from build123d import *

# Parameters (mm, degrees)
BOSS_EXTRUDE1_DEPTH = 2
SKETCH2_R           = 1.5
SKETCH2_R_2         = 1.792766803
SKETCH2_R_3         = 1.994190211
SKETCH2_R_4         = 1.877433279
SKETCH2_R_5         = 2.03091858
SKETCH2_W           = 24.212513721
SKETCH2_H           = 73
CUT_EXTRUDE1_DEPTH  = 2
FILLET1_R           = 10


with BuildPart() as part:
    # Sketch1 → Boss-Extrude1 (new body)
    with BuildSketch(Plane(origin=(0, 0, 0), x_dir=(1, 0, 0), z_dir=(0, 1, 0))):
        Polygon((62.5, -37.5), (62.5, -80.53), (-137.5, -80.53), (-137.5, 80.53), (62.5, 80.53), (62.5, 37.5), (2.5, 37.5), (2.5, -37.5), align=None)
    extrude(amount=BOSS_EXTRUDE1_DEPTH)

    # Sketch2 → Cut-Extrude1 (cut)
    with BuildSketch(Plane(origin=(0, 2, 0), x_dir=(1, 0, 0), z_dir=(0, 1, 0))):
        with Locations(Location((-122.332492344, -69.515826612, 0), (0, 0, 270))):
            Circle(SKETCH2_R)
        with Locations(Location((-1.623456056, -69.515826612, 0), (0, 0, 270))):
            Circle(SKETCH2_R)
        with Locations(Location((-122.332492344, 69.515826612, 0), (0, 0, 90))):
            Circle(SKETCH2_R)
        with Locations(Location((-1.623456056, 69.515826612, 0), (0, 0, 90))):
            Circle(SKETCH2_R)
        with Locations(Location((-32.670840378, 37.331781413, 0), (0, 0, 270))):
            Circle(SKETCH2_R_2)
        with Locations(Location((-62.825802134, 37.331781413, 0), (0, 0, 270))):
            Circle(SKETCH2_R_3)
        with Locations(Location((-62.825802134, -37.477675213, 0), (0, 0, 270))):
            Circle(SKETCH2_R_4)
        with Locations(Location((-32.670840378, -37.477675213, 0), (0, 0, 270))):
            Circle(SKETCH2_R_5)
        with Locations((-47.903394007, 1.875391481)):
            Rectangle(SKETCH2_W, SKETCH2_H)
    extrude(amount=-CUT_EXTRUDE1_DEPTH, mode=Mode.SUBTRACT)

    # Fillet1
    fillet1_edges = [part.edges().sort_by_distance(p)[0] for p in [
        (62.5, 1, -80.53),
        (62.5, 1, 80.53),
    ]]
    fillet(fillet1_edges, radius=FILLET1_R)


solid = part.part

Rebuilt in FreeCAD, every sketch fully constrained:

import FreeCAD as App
import Part
import Sketcher

V = App.Vector
Q = App.Units.Quantity


def edges_at(feature, points):
    """Names of the edges that pass closest to the given points."""
    edges = feature.Shape.Edges
    near = lambda p: min(range(len(edges)), key=lambda i: edges[i].distToShape(Part.Vertex(*p))[0])
    return sorted({f"Edge{near(p) + 1}" for p in points})


def add_polygon(sketch, points):
    """Adds a closed chain of lines whose ends are joined by coincident constraints."""
    first, n = sketch.GeometryCount, len(points)
    for a, b in zip(points, points[1:] + points[:1]):
        sketch.addGeometry(Part.LineSegment(App.Vector(*a, 0), App.Vector(*b, 0)), False)
    for i in range(n):
        sketch.addConstraint(Sketcher.Constraint("Coincident", first + i, 2, first + (i + 1) % n, 1))

doc = App.newDocument("Part")
body = doc.addObject("PartDesign::Body", "Body")

# Sketch on XZ plane
sketch1 = body.newObject("Sketcher::SketchObject", "Sketch")
sketch1.AttachmentSupport = (doc.getObject("XZ_Plane"), [""])
sketch1.MapMode = "FlatFace"
add_polygon(sketch1, [(62, 81), (62, 38), (2, 38), (2, -38), (62, -38), (62, -81), (-138, -81), (-138, 81)])  # lines 0-7
sketch1.addConstraint(Sketcher.Constraint("Vertical", 0))
sketch1.addConstraint(Sketcher.Constraint("Horizontal", 1))
sketch1.addConstraint(Sketcher.Constraint("Vertical", 2))
sketch1.addConstraint(Sketcher.Constraint("Horizontal", 3))
sketch1.addConstraint(Sketcher.Constraint("Vertical", 4))
sketch1.addConstraint(Sketcher.Constraint("Horizontal", 5))
sketch1.addConstraint(Sketcher.Constraint("Vertical", 6))
sketch1.addConstraint(Sketcher.Constraint("Horizontal", 7))
sketch1.addConstraint(Sketcher.Constraint("Symmetric", 0, 2, 3, 2, -1))
sketch1.addConstraint(Sketcher.Constraint("Equal", 0, 4))
sketch1.addConstraint(Sketcher.Constraint("DistanceX", 1, 2, 1, 1, Q("60 mm")))
sketch1.addConstraint(Sketcher.Constraint("DistanceX", 5, 2, 5, 1, Q("200 mm")))
sketch1.addConstraint(Sketcher.Constraint("DistanceY", 2, 2, 2, 1, Q("75 mm")))
sketch1.addConstraint(Sketcher.Constraint("DistanceY", 0, 2, 0, 1, Q("43.03 mm")))
sketch1.addConstraint(Sketcher.Constraint("DistanceX", -1, 1, 0, 2, Q("62.5 mm")))
pad1 = body.newObject("PartDesign::Pad", "Pad")
pad1.Profile = sketch1
pad1.Length = 2
pad1.Reversed = True

# Sketch on XZ plane
sketch2 = body.newObject("Sketcher::SketchObject", "Sketch001")
sketch2.AttachmentSupport = (doc.getObject("XZ_Plane"), [""])
sketch2.MapMode = "FlatFace"
sketch2.AttachmentOffset = App.Placement(V(0, 0, -2), App.Rotation())
sketch2.addGeometry(Part.Circle(V(-122.3, 69.5, 0), V(0, 0, 1), 1.5), False)  # 0
sketch2.addGeometry(Part.Circle(V(-1.6, 69.5, 0), V(0, 0, 1), 1.5), False)  # 1
sketch2.addGeometry(Part.Circle(V(-122.3, -69.5, 0), V(0, 0, 1), 1.5), False)  # 2
sketch2.addGeometry(Part.Circle(V(-1.6, -69.5, 0), V(0, 0, 1), 1.5), False)  # 3
sketch2.addGeometry(Part.Circle(V(-32.7, -37.3, 0), V(0, 0, 1), 1.8), False)  # 4
sketch2.addGeometry(Part.Circle(V(-62.8, -37.3, 0), V(0, 0, 1), 2), False)  # 5
sketch2.addGeometry(Part.Circle(V(-62.8, 37.5, 0), V(0, 0, 1), 1.9), False)  # 6
sketch2.addGeometry(Part.Circle(V(-32.7, 37.5, 0), V(0, 0, 1), 2), False)  # 7
add_polygon(sketch2, [(-60, -38.4), (-60, 34.6), (-35.8, 34.6), (-35.8, -38.4)])  # lines 8-11
sketch2.addConstraint(Sketcher.Constraint("Vertical", 8))
sketch2.addConstraint(Sketcher.Constraint("Horizontal", 9))
sketch2.addConstraint(Sketcher.Constraint("Vertical", 10))
sketch2.addConstraint(Sketcher.Constraint("Horizontal", 11))
sketch2.addConstraint(Sketcher.Constraint("Equal", 0, 1))
sketch2.addConstraint(Sketcher.Constraint("Equal", 1, 2))
sketch2.addConstraint(Sketcher.Constraint("Equal", 2, 3))
sketch2.addConstraint(Sketcher.Constraint("Symmetric", 0, 3, 2, 3, -1))
sketch2.addConstraint(Sketcher.Constraint("Symmetric", 1, 3, 3, 3, -1))
sketch2.addConstraint(Sketcher.Constraint("Horizontal", 0, 3, 1, 3))
sketch2.addConstraint(Sketcher.Constraint("Horizontal", 4, 3, 5, 3))
sketch2.addConstraint(Sketcher.Constraint("Horizontal", 6, 3, 7, 3))
sketch2.addConstraint(Sketcher.Constraint("Vertical", 5, 3, 6, 3))
sketch2.addConstraint(Sketcher.Constraint("Vertical", 4, 3, 7, 3))
sketch2.addConstraint(Sketcher.Constraint("Diameter", 0, Q("3 mm")))
sketch2.addConstraint(Sketcher.Constraint("DistanceY", 8, 1, 8, 2, Q("73 mm")))
sketch2.addConstraint(Sketcher.Constraint("Diameter", 5, Q("3.98838 mm")))
sketch2.addConstraint(Sketcher.Constraint("Diameter", 4, Q("3.585534 mm")))
sketch2.addConstraint(Sketcher.Constraint("Diameter", 6, Q("3.754867 mm")))
sketch2.addConstraint(Sketcher.Constraint("Diameter", 7, Q("4.061837 mm")))
sketch2.addConstraint(Sketcher.Constraint("DistanceY", 2, 3, 6, 3, Q("106.993502 mm")))
sketch2.addConstraint(Sketcher.Constraint("DistanceX", 9, 1, 9, 2, Q("24.212514 mm")))
sketch2.addConstraint(Sketcher.Constraint("DistanceX", 4, 3, -1, 1, Q("32.67084 mm")))
sketch2.addConstraint(Sketcher.Constraint("DistanceY", 4, 3, -1, 1, Q("37.331781 mm")))
sketch2.addConstraint(Sketcher.Constraint("DistanceX", 8, 2, -1, 1, Q("60.009651 mm")))
sketch2.addConstraint(Sketcher.Constraint("DistanceY", -1, 1, 8, 2, Q("34.624609 mm")))
sketch2.addConstraint(Sketcher.Constraint("DistanceX", 2, 3, 4, 3, Q("89.661652 mm")))
sketch2.addConstraint(Sketcher.Constraint("DistanceY", 4, 3, 1, 3, Q("106.847608 mm")))
sketch2.addConstraint(Sketcher.Constraint("DistanceX", 5, 3, 4, 3, Q("30.154962 mm")))
sketch2.addConstraint(Sketcher.Constraint("DistanceX", 9, 2, 1, 3, Q("34.173681 mm")))
pocket1 = body.newObject("PartDesign::Pocket", "Pocket")
pocket1.Profile = sketch2
pocket1.Length = 2
pocket1.Reversed = True
doc.recompute()

fillet = body.newObject("PartDesign::Fillet", "Fillet")
fillet.Base = (pocket1, edges_at(pocket1, [(62.5, 1, -80.53), (62.5, 1, 80.53)]))
fillet.Radius = 10

doc.recompute()
